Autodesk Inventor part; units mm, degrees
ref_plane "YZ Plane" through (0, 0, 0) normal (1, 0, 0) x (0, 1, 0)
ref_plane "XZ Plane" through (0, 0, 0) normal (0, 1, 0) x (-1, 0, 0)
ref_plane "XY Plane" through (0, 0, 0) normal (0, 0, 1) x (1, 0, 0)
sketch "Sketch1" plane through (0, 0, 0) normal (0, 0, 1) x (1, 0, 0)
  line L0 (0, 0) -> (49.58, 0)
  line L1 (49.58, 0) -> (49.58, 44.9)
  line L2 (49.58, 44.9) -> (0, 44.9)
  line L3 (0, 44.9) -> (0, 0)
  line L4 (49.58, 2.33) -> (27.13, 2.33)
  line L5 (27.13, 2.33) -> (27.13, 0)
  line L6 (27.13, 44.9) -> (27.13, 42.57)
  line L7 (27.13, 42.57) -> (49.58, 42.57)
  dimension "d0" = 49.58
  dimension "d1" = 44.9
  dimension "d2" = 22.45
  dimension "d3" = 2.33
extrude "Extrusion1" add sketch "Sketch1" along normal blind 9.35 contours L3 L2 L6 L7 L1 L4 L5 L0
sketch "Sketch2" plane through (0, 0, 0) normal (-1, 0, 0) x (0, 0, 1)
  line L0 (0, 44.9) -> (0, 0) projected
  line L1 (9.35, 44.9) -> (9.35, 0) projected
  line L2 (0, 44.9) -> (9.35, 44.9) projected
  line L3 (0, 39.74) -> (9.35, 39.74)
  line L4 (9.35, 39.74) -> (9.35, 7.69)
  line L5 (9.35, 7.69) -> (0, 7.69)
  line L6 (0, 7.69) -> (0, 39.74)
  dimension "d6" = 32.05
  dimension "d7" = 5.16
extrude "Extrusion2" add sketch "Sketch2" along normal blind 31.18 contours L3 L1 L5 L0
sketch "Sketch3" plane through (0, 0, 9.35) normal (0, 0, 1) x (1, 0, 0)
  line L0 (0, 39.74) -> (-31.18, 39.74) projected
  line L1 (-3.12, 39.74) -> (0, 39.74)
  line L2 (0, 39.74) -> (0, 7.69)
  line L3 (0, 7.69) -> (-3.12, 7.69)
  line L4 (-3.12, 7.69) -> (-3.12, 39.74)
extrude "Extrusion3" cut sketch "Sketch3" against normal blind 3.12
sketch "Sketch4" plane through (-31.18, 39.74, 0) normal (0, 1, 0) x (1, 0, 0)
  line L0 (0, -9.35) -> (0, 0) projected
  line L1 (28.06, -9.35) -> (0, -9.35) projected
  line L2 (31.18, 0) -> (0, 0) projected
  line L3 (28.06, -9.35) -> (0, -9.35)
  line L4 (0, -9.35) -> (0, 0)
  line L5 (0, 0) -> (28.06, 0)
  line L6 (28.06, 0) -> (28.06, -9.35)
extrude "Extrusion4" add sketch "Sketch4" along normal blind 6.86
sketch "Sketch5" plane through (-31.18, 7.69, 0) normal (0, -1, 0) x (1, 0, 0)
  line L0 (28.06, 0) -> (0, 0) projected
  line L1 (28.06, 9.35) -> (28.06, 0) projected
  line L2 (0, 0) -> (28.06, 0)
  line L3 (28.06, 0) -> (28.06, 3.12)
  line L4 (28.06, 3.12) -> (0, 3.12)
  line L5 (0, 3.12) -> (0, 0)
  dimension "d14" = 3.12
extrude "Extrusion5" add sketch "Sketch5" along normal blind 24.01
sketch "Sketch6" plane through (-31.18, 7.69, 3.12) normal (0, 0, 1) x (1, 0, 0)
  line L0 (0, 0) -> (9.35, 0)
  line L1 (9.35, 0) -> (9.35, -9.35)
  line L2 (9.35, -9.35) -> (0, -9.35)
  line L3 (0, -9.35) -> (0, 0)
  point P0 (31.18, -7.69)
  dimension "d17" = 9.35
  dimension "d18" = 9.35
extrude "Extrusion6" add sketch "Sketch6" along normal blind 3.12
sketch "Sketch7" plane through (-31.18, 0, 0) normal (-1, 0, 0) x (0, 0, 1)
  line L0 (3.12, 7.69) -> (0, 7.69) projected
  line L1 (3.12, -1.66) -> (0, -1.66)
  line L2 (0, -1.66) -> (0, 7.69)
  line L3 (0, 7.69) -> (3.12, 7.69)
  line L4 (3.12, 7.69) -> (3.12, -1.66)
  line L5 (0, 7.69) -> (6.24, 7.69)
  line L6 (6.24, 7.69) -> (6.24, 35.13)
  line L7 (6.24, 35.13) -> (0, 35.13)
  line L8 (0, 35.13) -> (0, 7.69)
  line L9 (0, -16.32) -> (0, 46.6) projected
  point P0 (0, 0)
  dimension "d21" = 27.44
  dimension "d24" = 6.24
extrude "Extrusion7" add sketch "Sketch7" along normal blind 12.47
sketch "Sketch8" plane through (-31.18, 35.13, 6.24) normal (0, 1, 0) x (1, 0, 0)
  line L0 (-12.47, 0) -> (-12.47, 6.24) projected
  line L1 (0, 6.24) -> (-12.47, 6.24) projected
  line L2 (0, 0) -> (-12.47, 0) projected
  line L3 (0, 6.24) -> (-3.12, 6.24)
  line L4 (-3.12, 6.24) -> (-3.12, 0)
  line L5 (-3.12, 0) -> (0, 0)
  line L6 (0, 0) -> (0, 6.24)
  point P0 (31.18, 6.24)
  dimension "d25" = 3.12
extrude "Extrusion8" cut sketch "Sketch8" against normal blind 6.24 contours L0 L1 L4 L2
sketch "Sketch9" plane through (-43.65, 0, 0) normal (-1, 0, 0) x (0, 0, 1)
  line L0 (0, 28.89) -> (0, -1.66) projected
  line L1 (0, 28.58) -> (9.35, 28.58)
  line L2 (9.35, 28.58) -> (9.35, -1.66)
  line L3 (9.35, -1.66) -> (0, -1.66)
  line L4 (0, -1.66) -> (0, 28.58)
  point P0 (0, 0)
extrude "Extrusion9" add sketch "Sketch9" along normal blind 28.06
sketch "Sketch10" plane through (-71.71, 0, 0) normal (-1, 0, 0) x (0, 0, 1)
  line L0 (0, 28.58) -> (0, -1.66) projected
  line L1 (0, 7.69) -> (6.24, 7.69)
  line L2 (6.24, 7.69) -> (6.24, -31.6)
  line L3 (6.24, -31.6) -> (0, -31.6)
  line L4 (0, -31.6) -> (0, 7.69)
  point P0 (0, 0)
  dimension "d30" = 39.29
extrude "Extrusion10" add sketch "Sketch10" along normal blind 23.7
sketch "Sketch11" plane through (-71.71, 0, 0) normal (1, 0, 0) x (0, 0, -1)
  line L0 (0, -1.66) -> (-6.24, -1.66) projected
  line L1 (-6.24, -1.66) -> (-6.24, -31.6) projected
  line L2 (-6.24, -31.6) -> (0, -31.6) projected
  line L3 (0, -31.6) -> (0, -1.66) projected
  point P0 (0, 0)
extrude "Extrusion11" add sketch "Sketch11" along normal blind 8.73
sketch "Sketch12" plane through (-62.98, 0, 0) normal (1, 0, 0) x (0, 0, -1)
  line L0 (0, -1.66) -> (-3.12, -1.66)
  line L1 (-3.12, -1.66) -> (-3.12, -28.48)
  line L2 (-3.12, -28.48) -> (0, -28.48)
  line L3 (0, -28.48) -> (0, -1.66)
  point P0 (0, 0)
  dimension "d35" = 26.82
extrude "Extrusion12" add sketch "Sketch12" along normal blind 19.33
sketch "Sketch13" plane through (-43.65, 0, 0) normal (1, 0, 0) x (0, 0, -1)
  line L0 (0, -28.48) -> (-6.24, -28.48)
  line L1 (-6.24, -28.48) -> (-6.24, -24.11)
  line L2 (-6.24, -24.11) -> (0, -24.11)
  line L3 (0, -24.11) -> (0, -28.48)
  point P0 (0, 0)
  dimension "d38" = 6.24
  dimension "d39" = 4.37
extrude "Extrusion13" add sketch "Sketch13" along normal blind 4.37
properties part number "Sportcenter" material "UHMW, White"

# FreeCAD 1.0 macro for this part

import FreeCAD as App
import Part
import Sketcher
Q = App.Units.Quantity

doc = App.newDocument("Part")
params = doc.addObject("Spreadsheet::Sheet", "Params")
for row, (alias, value) in enumerate([
    ("sketch1_height", "44.9 mm"),
    ("sketch1_width", "22.45 mm"),
    ("sketch1_height2", "2.33 mm"),
    ("pad1_length", "9.35 mm"),
    ("sketch2_width", "32.05 mm"),
    ("sketch2_height", "9.35 mm"),
    ("pad2_length", "31.18 mm"),
    ("sketch3_width", "3.12 mm"),
    ("sketch3_height", "32.05 mm"),
    ("pocket1_length", "3.12 mm"),
    ("sketch4_width", "28.06 mm"),
    ("sketch4_height", "9.35 mm"),
    ("pad3_length", "6.86 mm"),
    ("sketch5_height", "3.12 mm"),
    ("sketch5_width", "28.06 mm"),
    ("pad4_length", "24.01 mm"),
    ("sketch6_width", "9.35 mm"),
    ("pad5_length", "3.12 mm"),
    ("sketch7_width", "27.44 mm"),
    ("sketch7_height", "6.24 mm"),
    ("sketch7_width2", "9.35 mm"),
    ("pad6_length", "12.47 mm"),
    ("sketch8_width", "9.35 mm"),
    ("sketch8_height", "6.24 mm"),
    ("pocket2_length", "6.24 mm"),
    ("sketch9_width", "30.24 mm"),
    ("sketch9_height", "9.35 mm"),
    ("pad7_length", "28.06 mm"),
    ("sketch10_width", "39.29 mm"),
    ("sketch10_height", "6.24 mm"),
    ("pad8_length", "23.7 mm"),
    ("sketch11_width", "29.94 mm"),
    ("sketch11_height", "6.24 mm"),
    ("pad9_length", "8.73 mm"),
    ("sketch12_width", "26.82 mm"),
    ("sketch12_height", "3.12 mm"),
    ("pad10_length", "19.33 mm"),
    ("sketch13_width", "4.37 mm"),
    ("sketch13_height", "6.24 mm"),
    ("pad11_length", "4.37 mm"),
], start=1):
    params.set(f"A{row}", alias)
    params.set(f"B{row}", "=" + value)
    params.setAlias(f"B{row}", alias)

body = doc.addObject("PartDesign::Body", "Body")

# Sketch on XY plane
sketch1 = body.newObject("Sketcher::SketchObject", "Sketch")
sketch1.AttachmentSupport = (doc.getObject("XY_Plane"), [""])
sketch1.MapMode = "FlatFace"
sketch1.addGeometry(Part.LineSegment(App.Vector(0, 44.9, 0), App.Vector(0, 0, 0)), False)
sketch1.addGeometry(Part.LineSegment(App.Vector(0, 0, 0), App.Vector(27.1, 0, 0)), False)
sketch1.addGeometry(Part.LineSegment(App.Vector(27.1, 0, 0), App.Vector(27.1, 2.3, 0)), False)
sketch1.addGeometry(Part.LineSegment(App.Vector(27.1, 2.3, 0), App.Vector(49.6, 2.3, 0)), False)
sketch1.addGeometry(Part.LineSegment(App.Vector(49.6, 2.3, 0), App.Vector(49.6, 42.6, 0)), False)
sketch1.addGeometry(Part.LineSegment(App.Vector(49.6, 42.6, 0), App.Vector(27.1, 42.6, 0)), False)
sketch1.addGeometry(Part.LineSegment(App.Vector(27.1, 42.6, 0), App.Vector(27.1, 44.9, 0)), False)
sketch1.addGeometry(Part.LineSegment(App.Vector(27.1, 44.9, 0), App.Vector(0, 44.9, 0)), False)
sketch1.addConstraint(Sketcher.Constraint("Coincident", 0, 2, 1, 1))
sketch1.addConstraint(Sketcher.Constraint("Coincident", 1, 2, 2, 1))
sketch1.addConstraint(Sketcher.Constraint("Coincident", 2, 2, 3, 1))
sketch1.addConstraint(Sketcher.Constraint("Coincident", 3, 2, 4, 1))
sketch1.addConstraint(Sketcher.Constraint("Coincident", 4, 2, 5, 1))
sketch1.addConstraint(Sketcher.Constraint("Coincident", 5, 2, 6, 1))
sketch1.addConstraint(Sketcher.Constraint("Coincident", 6, 2, 7, 1))
sketch1.addConstraint(Sketcher.Constraint("Coincident", 7, 2, 0, 1))
sketch1.addConstraint(Sketcher.Constraint("Vertical", 0))
sketch1.addConstraint(Sketcher.Constraint("Horizontal", 1))
sketch1.addConstraint(Sketcher.Constraint("Vertical", 2))
sketch1.addConstraint(Sketcher.Constraint("Horizontal", 3))
sketch1.addConstraint(Sketcher.Constraint("Vertical", 4))
sketch1.addConstraint(Sketcher.Constraint("Horizontal", 5))
sketch1.addConstraint(Sketcher.Constraint("Vertical", 6))
sketch1.addConstraint(Sketcher.Constraint("Horizontal", 7))
sketch1.addConstraint(Sketcher.Constraint("Coincident", 0, 2, -1, 1))
sketch1.addConstraint(Sketcher.Constraint("Vertical", 2, 2, 5, 2))
sketch1.addConstraint(Sketcher.Constraint("Equal", 2, 6))
sketch1.addConstraint(Sketcher.Constraint("DistanceY", 0, 2, 0, 1, Q("44.9 mm")))
sketch1.addConstraint(Sketcher.Constraint("DistanceX", 3, 1, 3, 2, Q("22.45 mm")))
sketch1.addConstraint(Sketcher.Constraint("DistanceY", 2, 1, 2, 2, Q("2.33 mm")))
sketch1.addConstraint(Sketcher.Constraint("DistanceX", -1, 1, 3, 2, Q("49.58 mm")))
sketch1.setExpression("Constraints[19]", "Params.sketch1_height")
sketch1.setExpression("Constraints[20]", "Params.sketch1_width")
sketch1.setExpression("Constraints[21]", "Params.sketch1_height2")
pad1 = body.newObject("PartDesign::Pad", "Pad")
pad1.Profile = sketch1
pad1.setExpression("Length", "Params.pad1_length")

# Sketch on YZ plane
sketch2 = body.newObject("Sketcher::SketchObject", "Sketch001")
sketch2.AttachmentSupport = (doc.getObject("YZ_Plane"), [""])
sketch2.MapMode = "FlatFace"
sketch2.addGeometry(Part.LineSegment(App.Vector(40, 9, 0), App.Vector(40, 0, 0)), False)
sketch2.addGeometry(Part.LineSegment(App.Vector(40, 0, 0), App.Vector(8, 0, 0)), False)
sketch2.addGeometry(Part.LineSegment(App.Vector(8, 0, 0), App.Vector(8, 9, 0)), False)
sketch2.addGeometry(Part.LineSegment(App.Vector(8, 9, 0), App.Vector(40, 9, 0)), False)
sketch2.addConstraint(Sketcher.Constraint("Coincident", 0, 2, 1, 1))
sketch2.addConstraint(Sketcher.Constraint("Coincident", 1, 2, 2, 1))
sketch2.addConstraint(Sketcher.Constraint("Coincident", 2, 2, 3, 1))
sketch2.addConstraint(Sketcher.Constraint("Coincident", 3, 2, 0, 1))
sketch2.addConstraint(Sketcher.Constraint("Vertical", 0))
sketch2.addConstraint(Sketcher.Constraint("Horizontal", 1))
sketch2.addConstraint(Sketcher.Constraint("Vertical", 2))
sketch2.addConstraint(Sketcher.Constraint("Horizontal", 3))
sketch2.addConstraint(Sketcher.Constraint("PointOnObject", 0, 2, -1))
sketch2.addConstraint(Sketcher.Constraint("DistanceX", 1, 2, 1, 1, Q("32.05 mm")))
sketch2.addConstraint(Sketcher.Constraint("DistanceY", 0, 2, 0, 1, Q("9.35 mm")))
sketch2.addConstraint(Sketcher.Constraint("DistanceX", -1, 1, 0, 2, Q("39.74 mm")))
sketch2.setExpression("Constraints[9]", "Params.sketch2_width")
sketch2.setExpression("Constraints[10]", "Params.sketch2_height")
pad2 = body.newObject("PartDesign::Pad", "Pad001")
pad2.Profile = sketch2
pad2.setExpression("Length", "Params.pad2_length")
pad2.Reversed = True

# Sketch on XY plane
sketch3 = body.newObject("Sketcher::SketchObject", "Sketch002")
sketch3.AttachmentSupport = (doc.getObject("XY_Plane"), [""])
sketch3.MapMode = "FlatFace"
sketch3.AttachmentOffset = App.Placement(App.Vector(0, 0, 9.35), App.Rotation())
sketch3.addGeometry(Part.LineSegment(App.Vector(0, 7.7, 0), App.Vector(0, 39.7, 0)), False)
sketch3.addGeometry(Part.LineSegment(App.Vector(0, 39.7, 0), App.Vector(-3.1, 39.7, 0)), False)
sketch3.addGeometry(Part.LineSegment(App.Vector(-3.1, 39.7, 0), App.Vector(-3.1, 7.7, 0)), False)
sketch3.addGeometry(Part.LineSegment(App.Vector(-3.1, 7.7, 0), App.Vector(0, 7.7, 0)), False)
sketch3.addConstraint(Sketcher.Constraint("Coincident", 0, 2, 1, 1))
sketch3.addConstraint(Sketcher.Constraint("Coincident", 1, 2, 2, 1))
sketch3.addConstraint(Sketcher.Constraint("Coincident", 2, 2, 3, 1))
sketch3.addConstraint(Sketcher.Constraint("Coincident", 3, 2, 0, 1))
sketch3.addConstraint(Sketcher.Constraint("Vertical", 0))
sketch3.addConstraint(Sketcher.Constraint("Horizontal", 1))
sketch3.addConstraint(Sketcher.Constraint("Vertical", 2))
sketch3.addConstraint(Sketcher.Constraint("Horizontal", 3))
sketch3.addConstraint(Sketcher.Constraint("PointOnObject", 0, 2, -2))
sketch3.addConstraint(Sketcher.Constraint("DistanceX", 1, 2, 1, 1, Q("3.12 mm")))
sketch3.addConstraint(Sketcher.Constraint("DistanceY", 0, 1, 0, 2, Q("32.05 mm")))
sketch3.addConstraint(Sketcher.Constraint("DistanceY", -1, 1, 0, 2, Q("39.74 mm")))
sketch3.setExpression("Constraints[9]", "Params.sketch3_width")
sketch3.setExpression("Constraints[10]", "Params.sketch3_height")
pocket1 = body.newObject("PartDesign::Pocket", "Pocket")
pocket1.Profile = sketch3
pocket1.setExpression("Length", "Params.pocket1_length")

# Sketch on XZ plane
sketch4 = body.newObject("Sketcher::SketchObject", "Sketch003")
sketch4.AttachmentSupport = (doc.getObject("XZ_Plane"), [""])
sketch4.MapMode = "FlatFace"
sketch4.AttachmentOffset = App.Placement(App.Vector(0, 0, -39.74), App.Rotation())
sketch4.addGeometry(Part.LineSegment(App.Vector(-31, 0, 0), App.Vector(-31, 9, 0)), False)
sketch4.addGeometry(Part.LineSegment(App.Vector(-31, 9, 0), App.Vector(-3, 9, 0)), False)
sketch4.addGeometry(Part.LineSegment(App.Vector(-3, 9, 0), App.Vector(-3, 0, 0)), False)
sketch4.addGeometry(Part.LineSegment(App.Vector(-3, 0, 0), App.Vector(-31, 0, 0)), False)
sketch4.addConstraint(Sketcher.Constraint("Coincident", 0, 2, 1, 1))
sketch4.addConstraint(Sketcher.Constraint("Coincident", 1, 2, 2, 1))
sketch4.addConstraint(Sketcher.Constraint("Coincident", 2, 2, 3, 1))
sketch4.addConstraint(Sketcher.Constraint("Coincident", 3, 2, 0, 1))
sketch4.addConstraint(Sketcher.Constraint("Vertical", 0))
sketch4.addConstraint(Sketcher.Constraint("Horizontal", 1))
sketch4.addConstraint(Sketcher.Constraint("Vertical", 2))
sketch4.addConstraint(Sketcher.Constraint("Horizontal", 3))
sketch4.addConstraint(Sketcher.Constraint("PointOnObject", 2, 2, -1))
sketch4.addConstraint(Sketcher.Constraint("DistanceX", 1, 1, 1, 2, Q("28.06 mm")))
sketch4.addConstraint(Sketcher.Constraint("DistanceY", 0, 1, 0, 2, Q("9.35 mm")))
sketch4.addConstraint(Sketcher.Constraint("DistanceX", 0, 2, -1, 1, Q("31.18 mm")))
sketch4.setExpression("Constraints[9]", "Params.sketch4_width")
sketch4.setExpression("Constraints[10]", "Params.sketch4_height")
pad3 = body.newObject("PartDesign::Pad", "Pad002")
pad3.Profile = sketch4
pad3.setExpression("Length", "Params.pad3_length")
pad3.Reversed = True

# Sketch on XZ plane
sketch5 = body.newObject("Sketcher::SketchObject", "Sketch004")
sketch5.AttachmentSupport = (doc.getObject("XZ_Plane"), [""])
sketch5.MapMode = "FlatFace"
sketch5.AttachmentOffset = App.Placement(App.Vector(0, 0, -7.69), App.Rotation())
sketch5.addGeometry(Part.LineSegment(App.Vector(-31.2, 0, 0), App.Vector(-3.1, 0, 0)), False)
sketch5.addGeometry(Part.LineSegment(App.Vector(-3.1, 0, 0), App.Vector(-3.1, 3.1, 0)), False)
sketch5.addGeometry(Part.LineSegment(App.Vector(-3.1, 3.1, 0), App.Vector(-31.2, 3.1, 0)), False)
sketch5.addGeometry(Part.LineSegment(App.Vector(-31.2, 3.1, 0), App.Vector(-31.2, 0, 0)), False)
sketch5.addConstraint(Sketcher.Constraint("Coincident", 0, 2, 1, 1))
sketch5.addConstraint(Sketcher.Constraint("Coincident", 1, 2, 2, 1))
sketch5.addConstraint(Sketcher.Constraint("Coincident", 2, 2, 3, 1))
sketch5.addConstraint(Sketcher.Constraint("Coincident", 3, 2, 0, 1))
sketch5.addConstraint(Sketcher.Constraint("Horizontal", 0))
sketch5.addConstraint(Sketcher.Constraint("Vertical", 1))
sketch5.addConstraint(Sketcher.Constraint("Horizontal", 2))
sketch5.addConstraint(Sketcher.Constraint("Vertical", 3))
sketch5.addConstraint(Sketcher.Constraint("PointOnObject", 0, 2, -1))
sketch5.addConstraint(Sketcher.Constraint("DistanceY", 1, 1, 1, 2, Q("3.12 mm")))
sketch5.addConstraint(Sketcher.Constraint("DistanceX", 0, 2, -1, 1, Q("3.12 mm")))
sketch5.addConstraint(Sketcher.Constraint("DistanceX", 0, 1, 0, 2, Q("28.06 mm")))
sketch5.setExpression("Constraints[9]", "Params.sketch5_height")
sketch5.setExpression("Constraints[11]", "Params.sketch5_width")
pad4 = body.newObject("PartDesign::Pad", "Pad003")
pad4.Profile = sketch5
pad4.setExpression("Length", "Params.pad4_length")

# Sketch on XY plane
sketch6 = body.newObject("Sketcher::SketchObject", "Sketch005")
sketch6.AttachmentSupport = (doc.getObject("XY_Plane"), [""])
sketch6.MapMode = "FlatFace"
sketch6.AttachmentOffset = App.Placement(App.Vector(0, 0, 3.12), App.Rotation())
sketch6.addGeometry(Part.LineSegment(App.Vector(-22, 8, 0), App.Vector(-31, 8, 0)), False)
sketch6.addGeometry(Part.LineSegment(App.Vector(-31, 8, 0), App.Vector(-31, -2, 0)), False)
sketch6.addGeometry(Part.LineSegment(App.Vector(-31, -2, 0), App.Vector(-22, -2, 0)), False)
sketch6.addGeometry(Part.LineSegment(App.Vector(-22, -2, 0), App.Vector(-22, 8, 0)), False)
sketch6.addConstraint(Sketcher.Constraint("Coincident", 0, 2, 1, 1))
sketch6.addConstraint(Sketcher.Constraint("Coincident", 1, 2, 2, 1))
sketch6.addConstraint(Sketcher.Constraint("Coincident", 2, 2, 3, 1))
sketch6.addConstraint(Sketcher.Constraint("Coincident", 3, 2, 0, 1))
sketch6.addConstraint(Sketcher.Constraint("Horizontal", 0))
sketch6.addConstraint(Sketcher.Constraint("Vertical", 1))
sketch6.addConstraint(Sketcher.Constraint("Horizontal", 2))
sketch6.addConstraint(Sketcher.Constraint("Vertical", 3))
sketch6.addConstraint(Sketcher.Constraint("Equal", 2, 1))
sketch6.addConstraint(Sketcher.Constraint("DistanceX", 0, 2, 0, 1, Q("9.35 mm")))
sketch6.addConstraint(Sketcher.Constraint("DistanceX", 0, 2, -1, 1, Q("31.18 mm")))
sketch6.addConstraint(Sketcher.Constraint("DistanceY", -1, 1, 0, 2, Q("7.69 mm")))
sketch6.setExpression("Constraints[9]", "Params.sketch6_width")
pad5 = body.newObject("PartDesign::Pad", "Pad004")
pad5.Profile = sketch6
pad5.setExpression("Length", "Params.pad5_length")

# Sketch on YZ plane
sketch7 = body.newObject("Sketcher::SketchObject", "Sketch006")
sketch7.AttachmentSupport = (doc.getObject("YZ_Plane"), [""])
sketch7.MapMode = "FlatFace"
sketch7.AttachmentOffset = App.Placement(App.Vector(0, 0, -31.18), App.Rotation())
sketch7.addGeometry(Part.LineSegment(App.Vector(-1.7, 3.1, 0), App.Vector(7.7, 3.1, 0)), False)
sketch7.addGeometry(Part.LineSegment(App.Vector(7.7, 3.1, 0), App.Vector(7.7, 6.2, 0)), False)
sketch7.addGeometry(Part.LineSegment(App.Vector(7.7, 6.2, 0), App.Vector(35.1, 6.2, 0)), False)
sketch7.addGeometry(Part.LineSegment(App.Vector(35.1, 6.2, 0), App.Vector(35.1, 0, 0)), False)
sketch7.addGeometry(Part.LineSegment(App.Vector(35.1, 0, 0), App.Vector(-1.7, 0, 0)), False)
sketch7.addGeometry(Part.LineSegment(App.Vector(-1.7, 0, 0), App.Vector(-1.7, 3.1, 0)), False)
sketch7.addConstraint(Sketcher.Constraint("Coincident", 0, 2, 1, 1))
sketch7.addConstraint(Sketcher.Constraint("Coincident", 1, 2, 2, 1))
sketch7.addConstraint(Sketcher.Constraint("Coincident", 2, 2, 3, 1))
sketch7.addConstraint(Sketcher.Constraint("Coincident", 3, 2, 4, 1))
sketch7.addConstraint(Sketcher.Constraint("Coincident", 4, 2, 5, 1))
sketch7.addConstraint(Sketcher.Constraint("Coincident", 5, 2, 0, 1))
sketch7.addConstraint(Sketcher.Constraint("Horizontal", 0))
sketch7.addConstraint(Sketcher.Constraint("Vertical", 1))
sketch7.addConstraint(Sketcher.Constraint("Horizontal", 2))
sketch7.addConstraint(Sketcher.Constraint("Vertical", 3))
sketch7.addConstraint(Sketcher.Constraint("Horizontal", 4))
sketch7.addConstraint(Sketcher.Constraint("Vertical", 5))
sketch7.addConstraint(Sketcher.Constraint("PointOnObject", 3, 2, -1))
sketch7.addConstraint(Sketcher.Constraint("Equal", 1, 5))
sketch7.addConstraint(Sketcher.Constraint("DistanceX", 2, 1, 2, 2, Q("27.44 mm")))
sketch7.addConstraint(Sketcher.Constraint("DistanceY", 3, 2, 3, 1, Q("6.24 mm")))
sketch7.addConstraint(Sketcher.Constraint("DistanceX", 0, 1, 0, 2, Q("9.35 mm")))
sketch7.addConstraint(Sketcher.Constraint("DistanceX", -1, 1, 0, 2, Q("7.69 mm")))
sketch7.setExpression("Constraints[14]", "Params.sketch7_width")
sketch7.setExpression("Constraints[15]", "Params.sketch7_height")
sketch7.setExpression("Constraints[16]", "Params.sketch7_width2")
pad6 = body.newObject("PartDesign::Pad", "Pad005")
pad6.Profile = sketch7
pad6.setExpression("Length", "Params.pad6_length")
pad6.Reversed = True

# Sketch on XZ plane
sketch8 = body.newObject("Sketcher::SketchObject", "Sketch007")
sketch8.AttachmentSupport = (doc.getObject("XZ_Plane"), [""])
sketch8.MapMode = "FlatFace"
sketch8.AttachmentOffset = App.Placement(App.Vector(0, 0, -35.13), App.Rotation())
sketch8.addGeometry(Part.LineSegment(App.Vector(-44, 0, 0), App.Vector(-44, 6, 0)), False)
sketch8.addGeometry(Part.LineSegment(App.Vector(-44, 6, 0), App.Vector(-34, 6, 0)), False)
sketch8.addGeometry(Part.LineSegment(App.Vector(-34, 6, 0), App.Vector(-34, 0, 0)), False)
sketch8.addGeometry(Part.LineSegment(App.Vector(-34, 0, 0), App.Vector(-44, 0, 0)), False)
sketch8.addConstraint(Sketcher.Constraint("Coincident", 0, 2, 1, 1))
sketch8.addConstraint(Sketcher.Constraint("Coincident", 1, 2, 2, 1))
sketch8.addConstraint(Sketcher.Constraint("Coincident", 2, 2, 3, 1))
sketch8.addConstraint(Sketcher.Constraint("Coincident", 3, 2, 0, 1))
sketch8.addConstraint(Sketcher.Constraint("Vertical", 0))
sketch8.addConstraint(Sketcher.Constraint("Horizontal", 1))
sketch8.addConstraint(Sketcher.Constraint("Vertical", 2))
sketch8.addConstraint(Sketcher.Constraint("Horizontal", 3))
sketch8.addConstraint(Sketcher.Constraint("PointOnObject", 2, 2, -1))
sketch8.addConstraint(Sketcher.Constraint("DistanceX", 1, 1, 1, 2, Q("9.35 mm")))
sketch8.addConstraint(Sketcher.Constraint("DistanceY", 0, 1, 0, 2, Q("6.24 mm")))
sketch8.addConstraint(Sketcher.Constraint("DistanceX", 1, 2, -1, 1, Q("34.3 mm")))
sketch8.setExpression("Constraints[9]", "Params.sketch8_width")
sketch8.setExpression("Constraints[10]", "Params.sketch8_height")
pocket2 = body.newObject("PartDesign::Pocket", "Pocket001")
pocket2.Profile = sketch8
pocket2.setExpression("Length", "Params.pocket2_length")
pocket2.Reversed = True

# Sketch on YZ plane
sketch9 = body.newObject("Sketcher::SketchObject", "Sketch008")
sketch9.AttachmentSupport = (doc.getObject("YZ_Plane"), [""])
sketch9.MapMode = "FlatFace"
sketch9.AttachmentOffset = App.Placement(App.Vector(0, 0, -43.65), App.Rotation())
sketch9.addGeometry(Part.LineSegment(App.Vector(29, 9, 0), App.Vector(29, 0, 0)), False)
sketch9.addGeometry(Part.LineSegment(App.Vector(29, 0, 0), App.Vector(-2, 0, 0)), False)
sketch9.addGeometry(Part.LineSegment(App.Vector(-2, 0, 0), App.Vector(-2, 9, 0)), False)
sketch9.addGeometry(Part.LineSegment(App.Vector(-2, 9, 0), App.Vector(29, 9, 0)), False)
sketch9.addConstraint(Sketcher.Constraint("Coincident", 0, 2, 1, 1))
sketch9.addConstraint(Sketcher.Constraint("Coincident", 1, 2, 2, 1))
sketch9.addConstraint(Sketcher.Constraint("Coincident", 2, 2, 3, 1))
sketch9.addConstraint(Sketcher.Constraint("Coincident", 3, 2, 0, 1))
sketch9.addConstraint(Sketcher.Constraint("Vertical", 0))
sketch9.addConstraint(Sketcher.Constraint("Horizontal", 1))
sketch9.addConstraint(Sketcher.Constraint("Vertical", 2))
sketch9.addConstraint(Sketcher.Constraint("Horizontal", 3))
sketch9.addConstraint(Sketcher.Constraint("PointOnObject", 0, 2, -1))
sketch9.addConstraint(Sketcher.Constraint("DistanceX", 1, 2, 1, 1, Q("30.24 mm")))
sketch9.addConstraint(Sketcher.Constraint("DistanceY", 0, 2, 0, 1, Q("9.35 mm")))
sketch9.addConstraint(Sketcher.Constraint("DistanceX", -1, 1, 0, 2, Q("28.58 mm")))
sketch9.setExpression("Constraints[9]", "Params.sketch9_width")
sketch9.setExpression("Constraints[10]", "Params.sketch9_height")
pad7 = body.newObject("PartDesign::Pad", "Pad006")
pad7.Profile = sketch9
pad7.setExpression("Length", "Params.pad7_length")
pad7.Reversed = True

# Sketch on YZ plane
sketch10 = body.newObject("Sketcher::SketchObject", "Sketch009")
sketch10.AttachmentSupport = (doc.getObject("YZ_Plane"), [""])
sketch10.MapMode = "FlatFace"
sketch10.AttachmentOffset = App.Placement(App.Vector(0, 0, -71.71), App.Rotation())
sketch10.addGeometry(Part.LineSegment(App.Vector(8, 6, 0), App.Vector(8, 0, 0)), False)
sketch10.addGeometry(Part.LineSegment(App.Vector(8, 0, 0), App.Vector(-32, 0, 0)), False)
sketch10.addGeometry(Part.LineSegment(App.Vector(-32, 0, 0), App.Vector(-32, 6, 0)), False)
sketch10.addGeometry(Part.LineSegment(App.Vector(-32, 6, 0), App.Vector(8, 6, 0)), False)
sketch10.addConstraint(Sketcher.Constraint("Coincident", 0, 2, 1, 1))
sketch10.addConstraint(Sketcher.Constraint("Coincident", 1, 2, 2, 1))
sketch10.addConstraint(Sketcher.Constraint("Coincident", 2, 2, 3, 1))
sketch10.addConstraint(Sketcher.Constraint("Coincident", 3, 2, 0, 1))
sketch10.addConstraint(Sketcher.Constraint("Vertical", 0))
sketch10.addConstraint(Sketcher.Constraint("Horizontal", 1))
sketch10.addConstraint(Sketcher.Constraint("Vertical", 2))
sketch10.addConstraint(Sketcher.Constraint("Horizontal", 3))
sketch10.addConstraint(Sketcher.Constraint("PointOnObject", 0, 2, -1))
sketch10.addConstraint(Sketcher.Constraint("DistanceX", 1, 2, 1, 1, Q("39.29 mm")))
sketch10.addConstraint(Sketcher.Constraint("DistanceY", 0, 2, 0, 1, Q("6.24 mm")))
sketch10.addConstraint(Sketcher.Constraint("DistanceX", 1, 2, -1, 1, Q("31.6 mm")))
sketch10.setExpression("Constraints[9]", "Params.sketch10_width")
sketch10.setExpression("Constraints[10]", "Params.sketch10_height")
pad8 = body.newObject("PartDesign::Pad", "Pad007")
pad8.Profile = sketch10
pad8.setExpression("Length", "Params.pad8_length")
pad8.Reversed = True

# Sketch on YZ plane
sketch11 = body.newObject("Sketcher::SketchObject", "Sketch010")
sketch11.AttachmentSupport = (doc.getObject("YZ_Plane"), [""])
sketch11.MapMode = "FlatFace"
sketch11.AttachmentOffset = App.Placement(App.Vector(0, 0, -71.71), App.Rotation())
sketch11.addGeometry(Part.LineSegment(App.Vector(-32, 0, 0), App.Vector(-2, 0, 0)), False)
sketch11.addGeometry(Part.LineSegment(App.Vector(-2, 0, 0), App.Vector(-2, 6, 0)), False)
sketch11.addGeometry(Part.LineSegment(App.Vector(-2, 6, 0), App.Vector(-32, 6, 0)), False)
sketch11.addGeometry(Part.LineSegment(App.Vector(-32, 6, 0), App.Vector(-32, 0, 0)), False)
sketch11.addConstraint(Sketcher.Constraint("Coincident", 0, 2, 1, 1))
sketch11.addConstraint(Sketcher.Constraint("Coincident", 1, 2, 2, 1))
sketch11.addConstraint(Sketcher.Constraint("Coincident", 2, 2, 3, 1))
sketch11.addConstraint(Sketcher.Constraint("Coincident", 3, 2, 0, 1))
sketch11.addConstraint(Sketcher.Constraint("Horizontal", 0))
sketch11.addConstraint(Sketcher.Constraint("Vertical", 1))
sketch11.addConstraint(Sketcher.Constraint("Horizontal", 2))
sketch11.addConstraint(Sketcher.Constraint("Vertical", 3))
sketch11.addConstraint(Sketcher.Constraint("PointOnObject", 0, 2, -1))
sketch11.addConstraint(Sketcher.Constraint("DistanceX", 0, 1, 0, 2, Q("29.94 mm")))
sketch11.addConstraint(Sketcher.Constraint("DistanceY", 1, 1, 1, 2, Q("6.24 mm")))
sketch11.addConstraint(Sketcher.Constraint("DistanceX", 2, 2, -1, 1, Q("31.6 mm")))
sketch11.setExpression("Constraints[9]", "Params.sketch11_width")
sketch11.setExpression("Constraints[10]", "Params.sketch11_height")
pad9 = body.newObject("PartDesign::Pad", "Pad008")
pad9.Profile = sketch11
pad9.setExpression("Length", "Params.pad9_length")

# Sketch on YZ plane
sketch12 = body.newObject("Sketcher::SketchObject", "Sketch011")
sketch12.AttachmentSupport = (doc.getObject("YZ_Plane"), [""])
sketch12.MapMode = "FlatFace"
sketch12.AttachmentOffset = App.Placement(App.Vector(0, 0, -62.98), App.Rotation())
sketch12.addGeometry(Part.LineSegment(App.Vector(-28.5, 0, 0), App.Vector(-1.7, 0, 0)), False)
sketch12.addGeometry(Part.LineSegment(App.Vector(-1.7, 0, 0), App.Vector(-1.7, 3.1, 0)), False)
sketch12.addGeometry(Part.LineSegment(App.Vector(-1.7, 3.1, 0), App.Vector(-28.5, 3.1, 0)), False)
sketch12.addGeometry(Part.LineSegment(App.Vector(-28.5, 3.1, 0), App.Vector(-28.5, 0, 0)), False)
sketch12.addConstraint(Sketcher.Constraint("Coincident", 0, 2, 1, 1))
sketch12.addConstraint(Sketcher.Constraint("Coincident", 1, 2, 2, 1))
sketch12.addConstraint(Sketcher.Constraint("Coincident", 2, 2, 3, 1))
sketch12.addConstraint(Sketcher.Constraint("Coincident", 3, 2, 0, 1))
sketch12.addConstraint(Sketcher.Constraint("Horizontal", 0))
sketch12.addConstraint(Sketcher.Constraint("Vertical", 1))
sketch12.addConstraint(Sketcher.Constraint("Horizontal", 2))
sketch12.addConstraint(Sketcher.Constraint("Vertical", 3))
sketch12.addConstraint(Sketcher.Constraint("PointOnObject", 0, 2, -1))
sketch12.addConstraint(Sketcher.Constraint("DistanceX", 0, 1, 0, 2, Q("26.82 mm")))
sketch12.addConstraint(Sketcher.Constraint("DistanceY", 1, 1, 1, 2, Q("3.12 mm")))
sketch12.addConstraint(Sketcher.Constraint("DistanceX", 0, 2, -1, 1, Q("1.66 mm")))
sketch12.setExpression("Constraints[9]", "Params.sketch12_width")
sketch12.setExpression("Constraints[10]", "Params.sketch12_height")
pad10 = body.newObject("PartDesign::Pad", "Pad009")
pad10.Profile = sketch12
pad10.setExpression("Length", "Params.pad10_length")

# Sketch on YZ plane
sketch13 = body.newObject("Sketcher::SketchObject", "Sketch012")
sketch13.AttachmentSupport = (doc.getObject("YZ_Plane"), [""])
sketch13.MapMode = "FlatFace"
sketch13.AttachmentOffset = App.Placement(App.Vector(0, 0, -43.65), App.Rotation())
sketch13.addGeometry(Part.LineSegment(App.Vector(-28.5, 6.2, 0), App.Vector(-28.5, 0, 0)), False)
sketch13.addGeometry(Part.LineSegment(App.Vector(-28.5, 0, 0), App.Vector(-24.1, 0, 0)), False)
sketch13.addGeometry(Part.LineSegment(App.Vector(-24.1, 0, 0), App.Vector(-24.1, 6.2, 0)), False)
sketch13.addGeometry(Part.LineSegment(App.Vector(-24.1, 6.2, 0), App.Vector(-28.5, 6.2, 0)), False)
sketch13.addConstraint(Sketcher.Constraint("Coincident", 0, 2, 1, 1))
sketch13.addConstraint(Sketcher.Constraint("Coincident", 1, 2, 2, 1))
sketch13.addConstraint(Sketcher.Constraint("Coincident", 2, 2, 3, 1))
sketch13.addConstraint(Sketcher.Constraint("Coincident", 3, 2, 0, 1))
sketch13.addConstraint(Sketcher.Constraint("Vertical", 0))
sketch13.addConstraint(Sketcher.Constraint("Horizontal", 1))
sketch13.addConstraint(Sketcher.Constraint("Vertical", 2))
sketch13.addConstraint(Sketcher.Constraint("Horizontal", 3))
sketch13.addConstraint(Sketcher.Constraint("PointOnObject", 0, 2, -1))
sketch13.addConstraint(Sketcher.Constraint("DistanceX", 1, 1, 1, 2, Q("4.37 mm")))
sketch13.addConstraint(Sketcher.Constraint("DistanceY", 0, 2, 0, 1, Q("6.24 mm")))
sketch13.addConstraint(Sketcher.Constraint("DistanceX", 0, 2, -1, 1, Q("28.48 mm")))
sketch13.setExpression("Constraints[9]", "Params.sketch13_width")
sketch13.setExpression("Constraints[10]", "Params.sketch13_height")
pad11 = body.newObject("PartDesign::Pad", "Pad010")
pad11.Profile = sketch13
pad11.setExpression("Length", "Params.pad11_length")

doc.recompute()
